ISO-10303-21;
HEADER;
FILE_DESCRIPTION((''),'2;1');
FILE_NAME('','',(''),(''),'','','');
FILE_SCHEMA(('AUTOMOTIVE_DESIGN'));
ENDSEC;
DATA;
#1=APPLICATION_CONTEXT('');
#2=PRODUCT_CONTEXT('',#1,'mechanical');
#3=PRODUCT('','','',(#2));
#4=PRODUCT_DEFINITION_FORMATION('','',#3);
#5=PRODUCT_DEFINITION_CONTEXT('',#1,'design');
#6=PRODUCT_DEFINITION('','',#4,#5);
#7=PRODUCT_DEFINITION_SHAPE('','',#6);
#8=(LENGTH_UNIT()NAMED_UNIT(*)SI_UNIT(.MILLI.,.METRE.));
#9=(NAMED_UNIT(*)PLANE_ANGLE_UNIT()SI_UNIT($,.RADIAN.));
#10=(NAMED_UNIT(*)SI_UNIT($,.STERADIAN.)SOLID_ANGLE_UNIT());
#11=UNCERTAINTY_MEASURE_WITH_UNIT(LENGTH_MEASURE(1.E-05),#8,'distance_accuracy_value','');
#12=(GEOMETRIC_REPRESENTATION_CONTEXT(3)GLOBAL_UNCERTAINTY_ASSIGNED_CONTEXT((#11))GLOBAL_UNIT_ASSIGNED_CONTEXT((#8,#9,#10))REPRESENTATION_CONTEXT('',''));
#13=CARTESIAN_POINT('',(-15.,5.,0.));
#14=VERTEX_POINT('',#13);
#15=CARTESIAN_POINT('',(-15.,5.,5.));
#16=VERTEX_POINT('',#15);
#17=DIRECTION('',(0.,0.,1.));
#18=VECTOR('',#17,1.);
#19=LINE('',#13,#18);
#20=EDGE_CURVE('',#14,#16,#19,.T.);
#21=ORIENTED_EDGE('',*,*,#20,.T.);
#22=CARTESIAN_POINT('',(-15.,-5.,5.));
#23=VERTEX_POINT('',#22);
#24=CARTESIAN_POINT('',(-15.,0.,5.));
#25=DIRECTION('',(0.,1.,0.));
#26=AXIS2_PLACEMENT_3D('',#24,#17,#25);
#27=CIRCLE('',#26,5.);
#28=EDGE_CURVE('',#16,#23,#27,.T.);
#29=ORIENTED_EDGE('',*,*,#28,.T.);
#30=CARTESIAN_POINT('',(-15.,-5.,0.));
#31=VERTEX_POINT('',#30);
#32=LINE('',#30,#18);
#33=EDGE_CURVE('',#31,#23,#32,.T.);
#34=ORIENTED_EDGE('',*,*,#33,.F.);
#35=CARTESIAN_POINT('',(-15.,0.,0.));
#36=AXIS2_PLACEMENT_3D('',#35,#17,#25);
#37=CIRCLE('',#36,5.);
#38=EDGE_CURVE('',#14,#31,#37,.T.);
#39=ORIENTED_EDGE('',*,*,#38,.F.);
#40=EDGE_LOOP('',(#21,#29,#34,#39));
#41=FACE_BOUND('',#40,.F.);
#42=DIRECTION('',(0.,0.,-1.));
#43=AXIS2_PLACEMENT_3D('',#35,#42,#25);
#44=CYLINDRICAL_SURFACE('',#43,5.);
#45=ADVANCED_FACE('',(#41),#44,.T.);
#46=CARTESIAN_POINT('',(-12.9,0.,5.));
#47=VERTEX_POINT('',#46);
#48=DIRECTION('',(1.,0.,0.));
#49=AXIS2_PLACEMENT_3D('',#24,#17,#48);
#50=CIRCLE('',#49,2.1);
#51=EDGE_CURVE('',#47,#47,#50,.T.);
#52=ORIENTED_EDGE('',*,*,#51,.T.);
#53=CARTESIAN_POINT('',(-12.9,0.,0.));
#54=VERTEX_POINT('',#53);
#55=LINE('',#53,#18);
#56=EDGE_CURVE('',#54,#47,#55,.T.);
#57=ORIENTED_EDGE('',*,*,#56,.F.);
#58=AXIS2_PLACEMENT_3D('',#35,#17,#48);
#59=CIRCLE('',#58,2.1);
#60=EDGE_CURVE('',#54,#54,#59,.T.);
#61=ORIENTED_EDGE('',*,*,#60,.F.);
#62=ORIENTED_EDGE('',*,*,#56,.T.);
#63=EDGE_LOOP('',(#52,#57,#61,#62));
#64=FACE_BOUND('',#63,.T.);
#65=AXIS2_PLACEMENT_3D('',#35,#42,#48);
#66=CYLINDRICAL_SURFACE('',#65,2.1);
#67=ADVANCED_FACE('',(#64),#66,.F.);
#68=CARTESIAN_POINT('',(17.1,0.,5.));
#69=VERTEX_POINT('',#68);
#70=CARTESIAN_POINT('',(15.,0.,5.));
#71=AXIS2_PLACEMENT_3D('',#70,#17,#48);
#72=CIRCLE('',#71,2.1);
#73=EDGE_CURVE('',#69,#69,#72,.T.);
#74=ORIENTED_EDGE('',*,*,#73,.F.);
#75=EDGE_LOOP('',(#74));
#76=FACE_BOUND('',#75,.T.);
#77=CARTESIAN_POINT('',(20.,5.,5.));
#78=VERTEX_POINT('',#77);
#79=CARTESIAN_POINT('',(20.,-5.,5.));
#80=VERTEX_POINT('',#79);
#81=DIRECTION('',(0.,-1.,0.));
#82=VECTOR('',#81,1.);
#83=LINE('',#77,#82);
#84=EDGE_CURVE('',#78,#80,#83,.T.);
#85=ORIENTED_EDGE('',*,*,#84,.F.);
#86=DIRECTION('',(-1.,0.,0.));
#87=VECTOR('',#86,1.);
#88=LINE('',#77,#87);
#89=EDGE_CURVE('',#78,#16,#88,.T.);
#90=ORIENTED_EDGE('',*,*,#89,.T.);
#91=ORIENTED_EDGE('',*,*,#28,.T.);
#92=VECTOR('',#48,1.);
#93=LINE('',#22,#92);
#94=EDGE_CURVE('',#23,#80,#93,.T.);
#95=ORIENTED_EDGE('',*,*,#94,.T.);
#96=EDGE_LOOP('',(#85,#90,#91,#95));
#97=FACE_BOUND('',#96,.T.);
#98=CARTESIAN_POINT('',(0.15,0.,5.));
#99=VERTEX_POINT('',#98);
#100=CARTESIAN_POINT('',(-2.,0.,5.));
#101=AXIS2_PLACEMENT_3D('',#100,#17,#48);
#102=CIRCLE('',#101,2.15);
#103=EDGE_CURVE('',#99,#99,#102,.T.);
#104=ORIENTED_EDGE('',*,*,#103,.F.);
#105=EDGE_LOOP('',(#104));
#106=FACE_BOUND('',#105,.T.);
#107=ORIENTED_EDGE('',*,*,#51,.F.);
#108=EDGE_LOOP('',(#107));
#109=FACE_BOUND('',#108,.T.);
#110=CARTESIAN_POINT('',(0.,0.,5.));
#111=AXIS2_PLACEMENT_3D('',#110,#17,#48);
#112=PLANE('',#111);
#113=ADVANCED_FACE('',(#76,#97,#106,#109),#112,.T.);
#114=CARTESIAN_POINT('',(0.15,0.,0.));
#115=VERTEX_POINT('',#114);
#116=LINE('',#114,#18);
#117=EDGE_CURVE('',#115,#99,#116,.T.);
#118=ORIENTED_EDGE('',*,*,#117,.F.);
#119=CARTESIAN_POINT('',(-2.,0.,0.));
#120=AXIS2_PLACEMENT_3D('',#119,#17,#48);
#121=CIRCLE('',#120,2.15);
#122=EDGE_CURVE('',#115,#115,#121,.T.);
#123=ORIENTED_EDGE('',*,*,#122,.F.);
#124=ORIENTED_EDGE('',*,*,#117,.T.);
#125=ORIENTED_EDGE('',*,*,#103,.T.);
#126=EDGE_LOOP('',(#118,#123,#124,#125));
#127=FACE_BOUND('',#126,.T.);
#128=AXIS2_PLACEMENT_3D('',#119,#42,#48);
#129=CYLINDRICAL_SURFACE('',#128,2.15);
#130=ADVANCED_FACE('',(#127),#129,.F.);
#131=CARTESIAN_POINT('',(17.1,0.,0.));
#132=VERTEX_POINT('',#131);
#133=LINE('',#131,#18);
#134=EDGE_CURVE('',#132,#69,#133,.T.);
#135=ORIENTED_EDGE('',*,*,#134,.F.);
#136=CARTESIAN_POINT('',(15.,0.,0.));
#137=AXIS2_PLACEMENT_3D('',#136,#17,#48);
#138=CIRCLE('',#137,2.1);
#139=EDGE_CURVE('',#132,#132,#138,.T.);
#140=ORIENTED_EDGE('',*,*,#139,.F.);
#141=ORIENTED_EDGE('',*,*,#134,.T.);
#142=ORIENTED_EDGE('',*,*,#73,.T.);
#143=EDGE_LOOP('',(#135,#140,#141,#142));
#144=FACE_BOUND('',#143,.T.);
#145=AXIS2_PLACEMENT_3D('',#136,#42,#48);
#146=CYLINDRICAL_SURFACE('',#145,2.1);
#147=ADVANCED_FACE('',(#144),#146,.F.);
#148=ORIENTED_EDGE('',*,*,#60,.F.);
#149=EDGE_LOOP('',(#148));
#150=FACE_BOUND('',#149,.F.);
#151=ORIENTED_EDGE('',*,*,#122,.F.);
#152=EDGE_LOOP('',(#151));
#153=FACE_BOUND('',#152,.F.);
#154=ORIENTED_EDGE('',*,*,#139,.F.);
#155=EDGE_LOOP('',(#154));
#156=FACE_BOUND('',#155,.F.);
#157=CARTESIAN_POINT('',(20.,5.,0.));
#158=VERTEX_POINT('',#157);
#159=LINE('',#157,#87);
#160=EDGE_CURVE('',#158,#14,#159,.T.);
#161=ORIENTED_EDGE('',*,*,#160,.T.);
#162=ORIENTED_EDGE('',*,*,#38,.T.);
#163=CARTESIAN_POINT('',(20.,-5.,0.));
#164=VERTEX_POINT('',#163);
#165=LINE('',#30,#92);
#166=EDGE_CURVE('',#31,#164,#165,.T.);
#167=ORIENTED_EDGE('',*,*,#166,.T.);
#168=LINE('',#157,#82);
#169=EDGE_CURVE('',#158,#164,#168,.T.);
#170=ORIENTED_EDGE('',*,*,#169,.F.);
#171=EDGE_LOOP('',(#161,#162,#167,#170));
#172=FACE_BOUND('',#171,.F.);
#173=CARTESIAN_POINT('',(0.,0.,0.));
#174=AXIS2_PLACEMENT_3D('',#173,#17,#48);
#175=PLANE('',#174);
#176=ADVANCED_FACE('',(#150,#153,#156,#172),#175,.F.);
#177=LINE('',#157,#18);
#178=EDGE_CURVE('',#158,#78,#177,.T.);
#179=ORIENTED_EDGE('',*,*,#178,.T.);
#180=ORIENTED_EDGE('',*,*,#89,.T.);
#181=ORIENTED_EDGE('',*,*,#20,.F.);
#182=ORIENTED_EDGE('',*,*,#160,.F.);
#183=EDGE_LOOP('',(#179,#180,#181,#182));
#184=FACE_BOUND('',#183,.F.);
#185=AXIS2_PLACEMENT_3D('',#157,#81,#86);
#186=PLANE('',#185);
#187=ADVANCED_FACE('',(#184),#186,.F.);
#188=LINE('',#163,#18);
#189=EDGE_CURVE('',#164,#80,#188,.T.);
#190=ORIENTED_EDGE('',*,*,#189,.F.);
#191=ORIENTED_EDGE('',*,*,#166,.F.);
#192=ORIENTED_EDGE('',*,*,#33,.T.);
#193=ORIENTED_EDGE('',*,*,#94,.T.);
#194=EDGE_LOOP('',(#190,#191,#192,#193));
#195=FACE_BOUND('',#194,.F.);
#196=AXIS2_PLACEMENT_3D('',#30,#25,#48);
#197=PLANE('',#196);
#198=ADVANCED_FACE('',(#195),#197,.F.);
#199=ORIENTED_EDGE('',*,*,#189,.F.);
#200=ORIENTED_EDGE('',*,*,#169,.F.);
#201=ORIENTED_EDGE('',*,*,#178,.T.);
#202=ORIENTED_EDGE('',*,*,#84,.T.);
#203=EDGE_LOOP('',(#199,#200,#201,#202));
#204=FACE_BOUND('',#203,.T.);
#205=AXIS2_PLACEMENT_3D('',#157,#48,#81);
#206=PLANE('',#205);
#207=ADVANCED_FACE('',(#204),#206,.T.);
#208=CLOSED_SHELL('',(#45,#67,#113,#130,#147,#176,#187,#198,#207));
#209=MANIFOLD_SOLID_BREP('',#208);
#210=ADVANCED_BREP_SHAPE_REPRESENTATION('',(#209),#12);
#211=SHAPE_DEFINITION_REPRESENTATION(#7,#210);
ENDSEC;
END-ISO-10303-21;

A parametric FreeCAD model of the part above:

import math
import FreeCAD as App
import Part
import Sketcher
from FreeCAD import Vector

doc = App.newDocument("Part")
body = doc.addObject("PartDesign::Body", "Body")

# Sketch on XY plane
sketch1 = doc.addObject("Sketcher::SketchObject", "Sketch")
body.addObject(sketch1)
sketch1.AttachmentSupport = (doc.XY_Plane, [""])
sketch1.MapMode = "FlatFace"
sketch1.addGeometry([
    Part.ArcOfCircle(Part.Circle(Vector(-15, 0, 0), Vector(0, 0, 1), 5), math.radians(90), math.radians(270)),  # 0
    Part.LineSegment(Vector(-15, -5, 0), Vector(20, -5, 0)),  # 1
    Part.LineSegment(Vector(20, -5, 0), Vector(20, 5, 0)),  # 2
    Part.LineSegment(Vector(20, 5, 0), Vector(-15, 5, 0)),  # 3
    Part.Circle(Vector(-15, 0, 0), Vector(0, 0, 1), 2.1),  # 4
    Part.Circle(Vector(-2, 0, 0), Vector(0, 0, 1), 2.1),  # 5
    Part.Circle(Vector(15, 0, 0), Vector(0, 0, 1), 2.1),  # 6
], False)
sketch1.addConstraint([
    Sketcher.Constraint("Tangent", 0, 2, 1, 1),
    Sketcher.Constraint("Coincident", 1, 2, 2, 1),
    Sketcher.Constraint("Coincident", 2, 2, 3, 1),
    Sketcher.Constraint("Tangent", 3, 2, 0, 1),
    Sketcher.Constraint("Horizontal", 1),
    Sketcher.Constraint("Vertical", 2),
    Sketcher.Constraint("Horizontal", 3),
    Sketcher.Constraint("Coincident", 4, 3, 0, 3),
    Sketcher.Constraint("Equal", 4, 6),
    Sketcher.Constraint("Symmetric", 0, 3, 6, 3, -1, 1),
    Sketcher.Constraint("PointOnObject", 0, 3, -1),
    Sketcher.Constraint("PointOnObject", 5, 3, -1),
    Sketcher.Constraint("Radius", 0, 5.0),
    Sketcher.Constraint("Diameter", 4, 4.2),
    Sketcher.Constraint("Diameter", 5, 4.3),
    Sketcher.Constraint("DistanceX", 5, 3, 6, 3, 17.0),
    Sketcher.Constraint("DistanceX", 0, 3, 6, 3, 30.0),
    Sketcher.Constraint("DistanceX", 6, 3, 1, 2, 5.0),
])
pad1 = doc.addObject("PartDesign::Pad", "Pad")
body.addObject(pad1)
pad1.Profile = sketch1
pad1.Length = 5

doc.recompute()
